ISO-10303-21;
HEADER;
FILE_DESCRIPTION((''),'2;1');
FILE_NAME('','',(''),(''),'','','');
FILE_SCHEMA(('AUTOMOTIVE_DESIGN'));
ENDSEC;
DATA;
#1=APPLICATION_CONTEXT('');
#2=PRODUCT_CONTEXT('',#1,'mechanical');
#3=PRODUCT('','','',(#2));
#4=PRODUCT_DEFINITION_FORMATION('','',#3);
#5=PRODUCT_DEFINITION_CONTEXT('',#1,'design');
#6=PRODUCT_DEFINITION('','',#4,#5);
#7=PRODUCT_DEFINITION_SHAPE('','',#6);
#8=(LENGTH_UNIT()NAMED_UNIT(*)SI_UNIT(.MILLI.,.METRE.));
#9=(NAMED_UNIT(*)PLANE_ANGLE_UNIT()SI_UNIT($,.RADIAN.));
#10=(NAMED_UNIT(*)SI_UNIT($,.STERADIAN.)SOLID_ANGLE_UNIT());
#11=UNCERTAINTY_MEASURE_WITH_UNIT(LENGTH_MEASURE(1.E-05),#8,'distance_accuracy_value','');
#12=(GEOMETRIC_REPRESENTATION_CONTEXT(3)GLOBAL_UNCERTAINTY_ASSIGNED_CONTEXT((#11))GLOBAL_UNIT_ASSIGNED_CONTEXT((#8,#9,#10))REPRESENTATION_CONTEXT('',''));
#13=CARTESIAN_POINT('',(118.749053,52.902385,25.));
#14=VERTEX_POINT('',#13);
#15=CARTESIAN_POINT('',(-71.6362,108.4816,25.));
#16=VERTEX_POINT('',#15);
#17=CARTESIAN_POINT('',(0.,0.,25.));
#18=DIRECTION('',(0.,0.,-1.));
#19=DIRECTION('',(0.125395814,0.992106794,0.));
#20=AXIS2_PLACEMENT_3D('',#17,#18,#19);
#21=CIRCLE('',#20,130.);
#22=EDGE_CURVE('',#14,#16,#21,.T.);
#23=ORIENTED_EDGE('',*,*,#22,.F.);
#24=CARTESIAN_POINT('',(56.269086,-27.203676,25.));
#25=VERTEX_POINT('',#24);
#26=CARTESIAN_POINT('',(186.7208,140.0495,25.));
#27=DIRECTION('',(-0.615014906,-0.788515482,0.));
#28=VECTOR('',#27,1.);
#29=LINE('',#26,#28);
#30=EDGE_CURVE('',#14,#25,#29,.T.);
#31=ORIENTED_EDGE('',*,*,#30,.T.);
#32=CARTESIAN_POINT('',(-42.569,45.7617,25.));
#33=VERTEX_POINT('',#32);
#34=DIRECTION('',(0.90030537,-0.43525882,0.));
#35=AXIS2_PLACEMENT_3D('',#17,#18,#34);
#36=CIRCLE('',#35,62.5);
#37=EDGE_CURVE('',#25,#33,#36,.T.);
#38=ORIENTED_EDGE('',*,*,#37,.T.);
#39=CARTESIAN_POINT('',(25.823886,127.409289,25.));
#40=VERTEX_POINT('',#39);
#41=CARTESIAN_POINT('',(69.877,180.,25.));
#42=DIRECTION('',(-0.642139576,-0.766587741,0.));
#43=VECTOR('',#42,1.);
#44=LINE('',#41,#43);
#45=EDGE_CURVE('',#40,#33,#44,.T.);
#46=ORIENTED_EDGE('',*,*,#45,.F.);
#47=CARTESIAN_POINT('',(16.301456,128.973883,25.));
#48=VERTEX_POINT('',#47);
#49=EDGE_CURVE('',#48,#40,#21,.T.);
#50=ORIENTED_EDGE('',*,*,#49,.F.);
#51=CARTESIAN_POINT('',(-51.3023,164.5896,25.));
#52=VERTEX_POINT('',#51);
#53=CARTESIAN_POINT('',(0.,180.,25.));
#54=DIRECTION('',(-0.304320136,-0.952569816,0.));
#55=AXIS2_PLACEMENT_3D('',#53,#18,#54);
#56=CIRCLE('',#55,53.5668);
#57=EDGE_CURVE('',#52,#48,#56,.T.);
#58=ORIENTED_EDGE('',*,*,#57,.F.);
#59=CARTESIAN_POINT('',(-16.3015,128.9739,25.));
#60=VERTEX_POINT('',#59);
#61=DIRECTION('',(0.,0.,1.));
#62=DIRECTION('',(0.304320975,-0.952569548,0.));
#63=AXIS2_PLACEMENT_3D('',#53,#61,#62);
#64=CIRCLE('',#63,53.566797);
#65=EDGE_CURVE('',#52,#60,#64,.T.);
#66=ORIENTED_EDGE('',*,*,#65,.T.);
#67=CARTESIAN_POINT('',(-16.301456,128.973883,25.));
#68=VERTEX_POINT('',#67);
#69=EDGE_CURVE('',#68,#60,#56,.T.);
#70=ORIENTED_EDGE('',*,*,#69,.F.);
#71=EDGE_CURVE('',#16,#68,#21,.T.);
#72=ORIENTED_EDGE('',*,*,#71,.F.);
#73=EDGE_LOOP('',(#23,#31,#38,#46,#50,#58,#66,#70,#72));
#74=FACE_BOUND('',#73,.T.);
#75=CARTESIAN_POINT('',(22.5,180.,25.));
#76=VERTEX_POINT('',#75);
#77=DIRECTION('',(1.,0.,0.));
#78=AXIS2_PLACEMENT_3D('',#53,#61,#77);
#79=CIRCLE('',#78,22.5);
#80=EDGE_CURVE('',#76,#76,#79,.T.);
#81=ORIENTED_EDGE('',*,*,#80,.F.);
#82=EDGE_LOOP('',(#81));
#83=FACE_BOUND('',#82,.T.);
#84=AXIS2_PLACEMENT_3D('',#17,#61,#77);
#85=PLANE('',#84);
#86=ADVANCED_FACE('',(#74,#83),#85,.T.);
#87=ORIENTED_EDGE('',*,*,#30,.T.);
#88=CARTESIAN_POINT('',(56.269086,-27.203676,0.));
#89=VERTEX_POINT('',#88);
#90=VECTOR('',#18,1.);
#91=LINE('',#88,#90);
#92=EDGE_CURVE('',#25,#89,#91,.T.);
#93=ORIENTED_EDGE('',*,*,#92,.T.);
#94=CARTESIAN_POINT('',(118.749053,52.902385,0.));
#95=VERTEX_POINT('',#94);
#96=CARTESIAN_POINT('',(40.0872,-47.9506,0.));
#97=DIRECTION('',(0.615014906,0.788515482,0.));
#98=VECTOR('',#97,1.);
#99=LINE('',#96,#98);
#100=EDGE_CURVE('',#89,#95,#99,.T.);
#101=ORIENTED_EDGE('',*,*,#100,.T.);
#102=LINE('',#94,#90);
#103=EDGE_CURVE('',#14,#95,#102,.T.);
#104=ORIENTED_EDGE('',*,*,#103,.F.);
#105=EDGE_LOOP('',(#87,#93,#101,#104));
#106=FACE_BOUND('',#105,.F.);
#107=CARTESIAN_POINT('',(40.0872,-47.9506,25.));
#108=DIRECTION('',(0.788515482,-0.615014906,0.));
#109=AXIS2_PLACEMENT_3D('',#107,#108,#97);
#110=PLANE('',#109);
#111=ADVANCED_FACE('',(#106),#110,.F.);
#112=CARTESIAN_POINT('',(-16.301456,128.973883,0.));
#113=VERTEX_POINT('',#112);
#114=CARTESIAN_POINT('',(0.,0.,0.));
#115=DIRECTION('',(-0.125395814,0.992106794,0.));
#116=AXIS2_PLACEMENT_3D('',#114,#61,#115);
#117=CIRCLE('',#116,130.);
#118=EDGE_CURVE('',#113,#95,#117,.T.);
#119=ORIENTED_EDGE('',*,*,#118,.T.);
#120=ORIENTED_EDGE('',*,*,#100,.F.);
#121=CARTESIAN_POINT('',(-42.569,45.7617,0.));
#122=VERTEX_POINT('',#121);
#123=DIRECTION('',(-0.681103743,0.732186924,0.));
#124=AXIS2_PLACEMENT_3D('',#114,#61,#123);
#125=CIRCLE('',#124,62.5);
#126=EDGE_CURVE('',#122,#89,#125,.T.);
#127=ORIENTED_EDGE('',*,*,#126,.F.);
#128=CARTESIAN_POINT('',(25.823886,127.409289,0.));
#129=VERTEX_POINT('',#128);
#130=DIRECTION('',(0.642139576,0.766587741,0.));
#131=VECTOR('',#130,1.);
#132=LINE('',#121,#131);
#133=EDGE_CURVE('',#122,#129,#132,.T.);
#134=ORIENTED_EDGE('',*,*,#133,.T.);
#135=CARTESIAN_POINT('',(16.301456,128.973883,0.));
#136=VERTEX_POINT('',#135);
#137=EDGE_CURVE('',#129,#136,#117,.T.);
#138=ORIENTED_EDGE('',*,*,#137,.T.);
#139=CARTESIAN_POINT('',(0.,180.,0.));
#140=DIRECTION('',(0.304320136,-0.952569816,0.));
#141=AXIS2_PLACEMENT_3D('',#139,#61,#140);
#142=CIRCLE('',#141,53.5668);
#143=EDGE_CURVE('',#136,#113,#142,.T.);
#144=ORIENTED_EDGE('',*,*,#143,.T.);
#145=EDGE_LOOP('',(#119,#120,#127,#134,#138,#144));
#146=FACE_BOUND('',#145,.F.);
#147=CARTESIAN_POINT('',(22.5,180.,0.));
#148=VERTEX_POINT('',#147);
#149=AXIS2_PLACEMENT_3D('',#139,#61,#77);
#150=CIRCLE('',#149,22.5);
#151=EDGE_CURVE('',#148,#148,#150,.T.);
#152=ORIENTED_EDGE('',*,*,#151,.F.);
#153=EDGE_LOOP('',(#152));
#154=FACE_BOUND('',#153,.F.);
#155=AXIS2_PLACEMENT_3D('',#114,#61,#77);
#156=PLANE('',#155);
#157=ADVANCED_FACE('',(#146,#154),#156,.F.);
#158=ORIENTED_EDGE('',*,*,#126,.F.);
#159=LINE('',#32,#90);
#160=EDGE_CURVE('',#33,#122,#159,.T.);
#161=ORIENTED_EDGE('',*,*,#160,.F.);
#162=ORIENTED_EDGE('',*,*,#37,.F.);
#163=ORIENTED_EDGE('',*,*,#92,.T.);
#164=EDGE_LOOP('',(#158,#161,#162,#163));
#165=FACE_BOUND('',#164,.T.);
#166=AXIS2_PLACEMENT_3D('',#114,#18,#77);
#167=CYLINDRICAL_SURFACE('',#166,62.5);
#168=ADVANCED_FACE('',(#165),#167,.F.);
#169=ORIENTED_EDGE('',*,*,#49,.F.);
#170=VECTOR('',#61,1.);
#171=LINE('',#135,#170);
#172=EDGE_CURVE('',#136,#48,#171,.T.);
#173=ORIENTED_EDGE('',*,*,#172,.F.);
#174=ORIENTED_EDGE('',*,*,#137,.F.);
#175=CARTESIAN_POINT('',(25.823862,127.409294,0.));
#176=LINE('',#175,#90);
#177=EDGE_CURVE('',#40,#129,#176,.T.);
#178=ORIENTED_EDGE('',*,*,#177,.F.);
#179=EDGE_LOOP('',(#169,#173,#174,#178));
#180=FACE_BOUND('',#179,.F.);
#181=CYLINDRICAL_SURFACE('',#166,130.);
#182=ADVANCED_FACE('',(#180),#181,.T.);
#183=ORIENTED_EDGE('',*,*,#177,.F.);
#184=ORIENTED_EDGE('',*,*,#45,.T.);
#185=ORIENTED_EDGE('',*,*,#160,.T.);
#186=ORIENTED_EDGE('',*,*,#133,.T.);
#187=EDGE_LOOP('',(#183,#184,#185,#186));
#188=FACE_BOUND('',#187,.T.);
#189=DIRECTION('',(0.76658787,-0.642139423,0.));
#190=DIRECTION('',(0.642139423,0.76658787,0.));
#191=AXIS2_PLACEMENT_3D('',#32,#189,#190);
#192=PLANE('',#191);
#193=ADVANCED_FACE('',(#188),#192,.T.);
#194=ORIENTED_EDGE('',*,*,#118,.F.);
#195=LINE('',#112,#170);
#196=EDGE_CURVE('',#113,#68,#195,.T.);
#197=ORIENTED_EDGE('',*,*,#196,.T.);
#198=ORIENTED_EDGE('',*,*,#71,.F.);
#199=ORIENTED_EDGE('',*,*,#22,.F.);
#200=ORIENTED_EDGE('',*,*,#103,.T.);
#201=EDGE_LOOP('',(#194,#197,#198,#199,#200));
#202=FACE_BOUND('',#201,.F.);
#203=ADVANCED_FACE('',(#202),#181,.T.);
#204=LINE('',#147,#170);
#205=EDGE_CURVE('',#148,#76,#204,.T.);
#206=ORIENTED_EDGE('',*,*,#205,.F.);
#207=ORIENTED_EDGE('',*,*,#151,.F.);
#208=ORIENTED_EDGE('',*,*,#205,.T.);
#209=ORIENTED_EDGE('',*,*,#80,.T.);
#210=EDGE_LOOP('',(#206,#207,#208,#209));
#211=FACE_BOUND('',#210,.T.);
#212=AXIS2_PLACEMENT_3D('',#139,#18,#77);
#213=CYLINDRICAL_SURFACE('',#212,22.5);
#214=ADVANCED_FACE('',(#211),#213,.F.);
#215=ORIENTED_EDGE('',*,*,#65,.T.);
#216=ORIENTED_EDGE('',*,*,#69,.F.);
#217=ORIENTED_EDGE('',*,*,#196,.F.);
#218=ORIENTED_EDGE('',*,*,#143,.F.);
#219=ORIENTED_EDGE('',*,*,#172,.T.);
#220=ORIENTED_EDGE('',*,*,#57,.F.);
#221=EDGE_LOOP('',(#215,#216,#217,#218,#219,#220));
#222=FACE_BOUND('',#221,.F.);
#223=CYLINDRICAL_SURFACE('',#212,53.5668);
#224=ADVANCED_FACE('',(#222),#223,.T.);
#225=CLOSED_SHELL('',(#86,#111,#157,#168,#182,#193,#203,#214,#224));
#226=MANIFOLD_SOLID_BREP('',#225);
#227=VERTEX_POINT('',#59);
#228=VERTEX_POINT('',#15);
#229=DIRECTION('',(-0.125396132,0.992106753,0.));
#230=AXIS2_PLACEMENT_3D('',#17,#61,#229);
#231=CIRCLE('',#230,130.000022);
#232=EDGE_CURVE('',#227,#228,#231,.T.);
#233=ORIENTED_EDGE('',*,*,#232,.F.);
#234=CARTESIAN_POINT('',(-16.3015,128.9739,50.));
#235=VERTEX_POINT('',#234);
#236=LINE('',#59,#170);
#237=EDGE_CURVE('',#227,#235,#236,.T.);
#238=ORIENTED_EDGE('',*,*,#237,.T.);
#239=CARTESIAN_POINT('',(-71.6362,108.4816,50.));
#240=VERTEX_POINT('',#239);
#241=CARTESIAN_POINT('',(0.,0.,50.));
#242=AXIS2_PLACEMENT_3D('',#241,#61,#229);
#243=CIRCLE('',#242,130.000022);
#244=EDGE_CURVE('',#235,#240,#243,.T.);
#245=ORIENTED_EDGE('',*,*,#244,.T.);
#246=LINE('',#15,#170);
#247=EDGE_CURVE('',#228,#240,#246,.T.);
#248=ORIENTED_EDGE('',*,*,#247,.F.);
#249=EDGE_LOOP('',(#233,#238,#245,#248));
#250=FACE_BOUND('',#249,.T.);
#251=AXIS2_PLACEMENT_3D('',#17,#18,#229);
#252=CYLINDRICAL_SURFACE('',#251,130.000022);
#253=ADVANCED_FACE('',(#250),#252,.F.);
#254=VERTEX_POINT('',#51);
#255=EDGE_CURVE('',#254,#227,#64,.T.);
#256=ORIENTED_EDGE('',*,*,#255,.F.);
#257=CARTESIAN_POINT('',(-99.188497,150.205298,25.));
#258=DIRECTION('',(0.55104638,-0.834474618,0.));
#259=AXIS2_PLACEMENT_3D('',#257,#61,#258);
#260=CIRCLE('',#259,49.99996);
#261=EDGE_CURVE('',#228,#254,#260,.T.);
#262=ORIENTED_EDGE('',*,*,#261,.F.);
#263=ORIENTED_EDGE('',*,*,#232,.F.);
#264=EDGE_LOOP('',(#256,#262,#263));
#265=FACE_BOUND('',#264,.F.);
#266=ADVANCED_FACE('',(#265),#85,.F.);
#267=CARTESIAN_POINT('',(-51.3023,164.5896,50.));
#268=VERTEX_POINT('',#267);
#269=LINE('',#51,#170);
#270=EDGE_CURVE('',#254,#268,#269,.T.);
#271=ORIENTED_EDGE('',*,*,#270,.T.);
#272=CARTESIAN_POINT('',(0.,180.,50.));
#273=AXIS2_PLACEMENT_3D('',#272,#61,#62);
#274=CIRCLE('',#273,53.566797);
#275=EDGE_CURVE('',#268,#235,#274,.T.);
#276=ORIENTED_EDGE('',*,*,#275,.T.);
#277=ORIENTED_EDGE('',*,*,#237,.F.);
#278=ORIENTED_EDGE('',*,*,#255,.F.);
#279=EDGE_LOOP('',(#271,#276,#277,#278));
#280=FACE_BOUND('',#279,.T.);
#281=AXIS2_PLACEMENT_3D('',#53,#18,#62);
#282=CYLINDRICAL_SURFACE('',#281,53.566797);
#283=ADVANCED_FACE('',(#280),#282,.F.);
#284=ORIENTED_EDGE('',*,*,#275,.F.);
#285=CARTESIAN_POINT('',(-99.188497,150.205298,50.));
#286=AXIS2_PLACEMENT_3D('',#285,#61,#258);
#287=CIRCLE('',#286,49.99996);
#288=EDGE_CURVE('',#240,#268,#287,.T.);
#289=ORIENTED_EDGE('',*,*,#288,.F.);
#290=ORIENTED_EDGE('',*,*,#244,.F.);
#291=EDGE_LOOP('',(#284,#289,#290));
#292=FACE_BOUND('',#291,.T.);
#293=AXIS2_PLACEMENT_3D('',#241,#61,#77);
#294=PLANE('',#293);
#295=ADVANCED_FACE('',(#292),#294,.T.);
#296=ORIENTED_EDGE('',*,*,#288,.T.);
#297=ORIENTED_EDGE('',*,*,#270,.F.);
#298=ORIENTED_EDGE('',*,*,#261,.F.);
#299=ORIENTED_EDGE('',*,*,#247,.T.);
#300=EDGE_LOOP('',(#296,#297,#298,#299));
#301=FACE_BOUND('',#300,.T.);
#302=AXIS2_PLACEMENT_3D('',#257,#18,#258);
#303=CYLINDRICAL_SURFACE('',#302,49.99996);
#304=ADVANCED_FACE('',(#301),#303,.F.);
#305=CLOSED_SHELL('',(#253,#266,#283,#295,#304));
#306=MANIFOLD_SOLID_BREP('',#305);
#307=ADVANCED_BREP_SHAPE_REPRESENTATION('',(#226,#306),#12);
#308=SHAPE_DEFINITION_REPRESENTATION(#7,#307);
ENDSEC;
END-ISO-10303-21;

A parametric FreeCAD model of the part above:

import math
import FreeCAD as App
import Part
import Sketcher
from FreeCAD import Vector
Q = App.Units.Quantity


def add_polygon(sketch, points):
    """Adds a closed chain of lines whose ends are joined by coincident constraints."""
    first, n = sketch.GeometryCount, len(points)
    for a, b in zip(points, points[1:] + points[:1]):
        sketch.addGeometry(Part.LineSegment(App.Vector(*a, 0), App.Vector(*b, 0)), False)
    for i in range(n):
        sketch.addConstraint(Sketcher.Constraint("Coincident", first + i, 2, first + (i + 1) % n, 1))

doc = App.newDocument("Part")
body = doc.addObject("PartDesign::Body", "Body")
body.AllowCompound = True

# Sketch on XY plane
sketch1 = body.newObject("Sketcher::SketchObject", "Sketch")
sketch1.AttachmentSupport = (doc.getObject("XY_Plane"), [""])
sketch1.MapMode = "FlatFace"
sketch1.addGeometry([
    Part.ArcOfCircle(Part.Circle(Vector(0, 0, 0), Vector(0, 0, 1), 130), math.radians(97), math.radians(443)),
    Part.ArcOfCircle(Part.Circle(Vector(0, 180, 0), Vector(0, 0, 1), 54), math.radians(-72), math.radians(252)),
    Part.Circle(Vector(0, 0, 0), Vector(0, 0, 1), 62),
    Part.Circle(Vector(0, 180, 0), Vector(0, 0, 1), 22),
], False)
sketch1.addConstraint([
    Sketcher.Constraint("Coincident", 0, 1, 1, 2),
    Sketcher.Constraint("Coincident", 1, 1, 0, 2),
    Sketcher.Constraint("Coincident", 0, 3, -1, 1),
    Sketcher.Constraint("Coincident", 2, 3, -1, 1),
    Sketcher.Constraint("Coincident", 3, 3, 1, 3),
    Sketcher.Constraint("PointOnObject", 1, 3, -2),
    Sketcher.Constraint("Diameter", 2, Q("125 mm")),
    Sketcher.Constraint("Diameter", 3, Q("45 mm")),
    Sketcher.Constraint("Radius", 0, Q("130 mm")),
    Sketcher.Constraint("DistanceY", -1, 1, 1, 3, Q("180 mm")),
    Sketcher.Constraint("Radius", 1, Q("53.5668 mm")),
])
pad1 = body.newObject("PartDesign::Pad", "Pad")
pad1.Profile = sketch1
pad1.Length = 25

# Sketch on XY plane
sketch2 = body.newObject("Sketcher::SketchObject", "Sketch001")
sketch2.AttachmentSupport = (doc.getObject("XY_Plane"), [""])
sketch2.MapMode = "FlatFace"
sketch2.AttachmentOffset = App.Placement(Vector(0, 0, 25), App.Rotation())
sketch2.addGeometry([
    Part.ArcOfCircle(Part.Circle(Vector(-99, 150, 0), Vector(0, 0, 1), 50), math.radians(-57), math.radians(17)),
    Part.ArcOfCircle(Part.Circle(Vector(0, 0, 0), Vector(0, 0, 1), 130), math.radians(97), math.radians(123)),
    Part.ArcOfCircle(Part.Circle(Vector(0, 180, 0), Vector(0, 0, 1), 54), math.radians(-163), math.radians(-108)),
], False)
sketch2.addConstraint([
    Sketcher.Constraint("Tangent", 0, 1, 1, 2),
    Sketcher.Constraint("Coincident", 1, 1, 2, 2),
    Sketcher.Constraint("Tangent", 2, 1, 0, 2),
    Sketcher.Constraint("Coincident", 1, 3, -1, 1),
    Sketcher.Constraint("PointOnObject", 2, 3, -2),
    Sketcher.Constraint("Radius", 0, Q("50 mm")),
    Sketcher.Constraint("Radius", 1, Q("130 mm")),
    Sketcher.Constraint("DistanceY", -1, 1, 2, 3, Q("180 mm")),
    Sketcher.Constraint("Radius", 2, Q("53.5668 mm")),
])
pad2 = body.newObject("PartDesign::Pad", "Pad001")
pad2.Profile = sketch2
pad2.Length = 25

# Sketch on XY plane
sketch3 = body.newObject("Sketcher::SketchObject", "Sketch002")
sketch3.AttachmentSupport = (doc.getObject("XY_Plane"), [""])
sketch3.MapMode = "FlatFace"
sketch3.AttachmentOffset = App.Placement(Vector(0, 0, 25), App.Rotation())
add_polygon(sketch3, [(40, -48), (187, 140), (70, 180), (-43, 46), (0, -3)])  # lines 0-4
sketch3.addConstraint([
    Sketcher.Constraint("PointOnObject", 3, 2, -2),
    Sketcher.Constraint("Parallel", 3, 4),
    Sketcher.Constraint("DistanceY", -1, 1, 1, 2, Q("180 mm")),
    Sketcher.Constraint("DistanceY", 4, 2, 0, 2, Q("188 mm")),
    Sketcher.Constraint("Distance", 1, Q("123.485 mm")),
    Sketcher.Constraint("Distance", 3, Q("64.354 mm")),
    Sketcher.Constraint("DistanceX", -1, 1, 1, 2, Q("69.877 mm")),
    Sketcher.Constraint("DistanceX", 2, 2, -1, 1, Q("42.569 mm")),
    Sketcher.Constraint("Distance", 0, Q("238.4228 mm")),
    Sketcher.Constraint("Distance", 2, Q("175.1115 mm")),
])
pocket1 = body.newObject("PartDesign::Pocket", "Pocket")
pocket1.Profile = sketch3
pocket1.Length = 25

doc.recompute()
